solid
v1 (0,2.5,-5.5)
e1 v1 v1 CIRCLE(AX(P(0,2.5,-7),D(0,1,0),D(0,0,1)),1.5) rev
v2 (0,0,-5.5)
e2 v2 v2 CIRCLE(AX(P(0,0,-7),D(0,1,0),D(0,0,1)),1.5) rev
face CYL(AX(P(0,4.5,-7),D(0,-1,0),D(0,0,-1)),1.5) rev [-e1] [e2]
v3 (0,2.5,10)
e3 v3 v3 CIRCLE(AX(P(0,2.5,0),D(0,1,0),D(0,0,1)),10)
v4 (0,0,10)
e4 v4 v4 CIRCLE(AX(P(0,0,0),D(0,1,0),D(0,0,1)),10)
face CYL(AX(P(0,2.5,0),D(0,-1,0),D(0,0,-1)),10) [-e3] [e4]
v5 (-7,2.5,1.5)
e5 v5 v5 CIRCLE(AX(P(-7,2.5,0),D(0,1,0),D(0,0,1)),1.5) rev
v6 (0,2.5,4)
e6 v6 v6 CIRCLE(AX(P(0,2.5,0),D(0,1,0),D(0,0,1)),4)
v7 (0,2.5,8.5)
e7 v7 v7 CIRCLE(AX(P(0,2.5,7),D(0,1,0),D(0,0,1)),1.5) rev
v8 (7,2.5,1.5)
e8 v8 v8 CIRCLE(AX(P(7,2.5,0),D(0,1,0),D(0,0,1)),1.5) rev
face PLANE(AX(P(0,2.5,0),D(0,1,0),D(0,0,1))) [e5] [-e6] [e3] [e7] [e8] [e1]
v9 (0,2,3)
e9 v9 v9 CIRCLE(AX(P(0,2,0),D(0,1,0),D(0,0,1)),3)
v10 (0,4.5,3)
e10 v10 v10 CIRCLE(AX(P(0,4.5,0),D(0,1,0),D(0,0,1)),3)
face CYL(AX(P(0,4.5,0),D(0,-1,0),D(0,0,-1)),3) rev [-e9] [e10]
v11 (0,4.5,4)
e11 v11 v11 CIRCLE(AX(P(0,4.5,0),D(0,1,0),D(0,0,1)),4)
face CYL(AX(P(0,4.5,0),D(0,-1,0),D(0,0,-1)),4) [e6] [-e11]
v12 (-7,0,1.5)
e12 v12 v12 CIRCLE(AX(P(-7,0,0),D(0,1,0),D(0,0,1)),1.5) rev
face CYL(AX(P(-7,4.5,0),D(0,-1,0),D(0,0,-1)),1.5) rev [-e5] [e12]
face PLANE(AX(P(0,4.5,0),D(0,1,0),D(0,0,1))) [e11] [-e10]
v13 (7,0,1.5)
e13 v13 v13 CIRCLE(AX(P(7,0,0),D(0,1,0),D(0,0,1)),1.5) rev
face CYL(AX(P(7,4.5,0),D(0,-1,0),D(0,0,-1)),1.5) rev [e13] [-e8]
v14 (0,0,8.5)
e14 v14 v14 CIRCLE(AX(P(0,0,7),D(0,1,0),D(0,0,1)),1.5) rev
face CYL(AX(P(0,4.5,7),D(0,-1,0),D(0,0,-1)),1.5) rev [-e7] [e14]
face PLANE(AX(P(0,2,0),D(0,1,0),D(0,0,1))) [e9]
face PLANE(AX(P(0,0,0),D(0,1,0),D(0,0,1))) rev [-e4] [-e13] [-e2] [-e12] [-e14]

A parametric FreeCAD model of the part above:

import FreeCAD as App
import Part
import Sketcher

V = App.Vector
Q = App.Units.Quantity

doc = App.newDocument("Part")
body = doc.addObject("PartDesign::Body", "Body")

# Sketch on XZ plane
sketch1 = doc.addObject("Sketcher::SketchObject", "Sketch")
body.addObject(sketch1)
sketch1.AttachmentSupport = (doc.XZ_Plane, [""])
sketch1.MapMode = "FlatFace"
sketch1.addGeometry(Part.Circle(V(0, 0, 0), V(0, 0, 1), 10), False)
sketch1.addConstraint(Sketcher.Constraint("Coincident", 0, 3, -1, 1))
sketch1.addConstraint(Sketcher.Constraint("Diameter", 0, Q("20 mm")))
pad1 = doc.addObject("PartDesign::Pad", "Pad")
body.addObject(pad1)
pad1.Profile = sketch1
pad1.Length = 2.5
pad1.Reversed = True

# Sketch on XZ plane
sketch2 = doc.addObject("Sketcher::SketchObject", "Sketch001")
body.addObject(sketch2)
sketch2.AttachmentSupport = (doc.XZ_Plane, [""])
sketch2.MapMode = "FlatFace"
sketch2.AttachmentOffset = App.Placement(V(0, 0, -2.5), App.Rotation())
sketch2.addGeometry(Part.Circle(V(0, 0, 0), V(0, 0, 1), 4), False)
sketch2.addGeometry(Part.Circle(V(0, 0, 0), V(0, 0, 1), 3), False)
sketch2.addConstraint(Sketcher.Constraint("Coincident", 0, 3, -1, 1))
sketch2.addConstraint(Sketcher.Constraint("Coincident", 1, 3, -1, 1))
sketch2.addConstraint(Sketcher.Constraint("Diameter", 0, Q("8 mm")))
sketch2.addConstraint(Sketcher.Constraint("Diameter", 1, Q("6 mm")))
pad2 = doc.addObject("PartDesign::Pad", "Pad001")
body.addObject(pad2)
pad2.Profile = sketch2
pad2.Length = 2
pad2.Reversed = True

# Sketch on XZ plane
sketch3 = doc.addObject("Sketcher::SketchObject", "Sketch002")
body.addObject(sketch3)
sketch3.AttachmentSupport = (doc.XZ_Plane, [""])
sketch3.MapMode = "FlatFace"
sketch3.AttachmentOffset = App.Placement(V(0, 0, -2), App.Rotation())
sketch3.addGeometry(Part.Circle(V(0, 0, 0), V(0, 0, 1), 3), False)
sketch3.addConstraint(Sketcher.Constraint("Coincident", 0, 3, -1, 1))
sketch3.addConstraint(Sketcher.Constraint("Diameter", 0, Q("6 mm")))
pocket1 = doc.addObject("PartDesign::Pocket", "Pocket")
body.addObject(pocket1)
pocket1.Profile = sketch3
pocket1.Length = 0.5

# Sketch on XZ plane
sketch4 = doc.addObject("Sketcher::SketchObject", "Sketch003")
body.addObject(sketch4)
sketch4.AttachmentSupport = (doc.XZ_Plane, [""])
sketch4.MapMode = "FlatFace"
sketch4.AttachmentOffset = App.Placement(V(0, 0, -2), App.Rotation())
sketch4.addGeometry(Part.Circle(V(0, -7, 0), V(0, 0, 1), 1.5), False)
sketch4.addConstraint(Sketcher.Constraint("PointOnObject", 0, 3, -2))
sketch4.addConstraint(Sketcher.Constraint("Diameter", 0, Q("3 mm")))
sketch4.addConstraint(Sketcher.Constraint("DistanceY", 0, 3, -1, 1, Q("7 mm")))
pocket2 = doc.addObject("PartDesign::Pocket", "Pocket001")
body.addObject(pocket2)
pocket2.Profile = sketch4
pocket2.Type = "UpToFirst"
pocket2.Reversed = True

# Sketch on XZ plane
sketch5 = doc.addObject("Sketcher::SketchObject", "Sketch004")
body.addObject(sketch5)
sketch5.AttachmentSupport = (doc.XZ_Plane, [""])
sketch5.MapMode = "FlatFace"
sketch5.AttachmentOffset = App.Placement(V(0, 0, -2), App.Rotation())
sketch5.addGeometry(Part.Circle(V(7, 0, 0), V(0, 0, 1), 1.5), False)
sketch5.addConstraint(Sketcher.Constraint("PointOnObject", 0, 3, -1))
sketch5.addConstraint(Sketcher.Constraint("Diameter", 0, Q("3 mm")))
sketch5.addConstraint(Sketcher.Constraint("DistanceX", -1, 1, 0, 3, Q("7 mm")))
pocket3 = doc.addObject("PartDesign::Pocket", "Pocket002")
body.addObject(pocket3)
pocket3.Profile = sketch5
pocket3.Type = "UpToFirst"
pocket3.Reversed = True

# Sketch on XZ plane
sketch6 = doc.addObject("Sketcher::SketchObject", "Sketch005")
body.addObject(sketch6)
sketch6.AttachmentSupport = (doc.XZ_Plane, [""])
sketch6.MapMode = "FlatFace"
sketch6.AttachmentOffset = App.Placement(V(0, 0, -2), App.Rotation())
sketch6.addGeometry(Part.Circle(V(0, 7, 0), V(0, 0, 1), 1.5), False)
sketch6.addConstraint(Sketcher.Constraint("PointOnObject", 0, 3, -2))
sketch6.addConstraint(Sketcher.Constraint("Diameter", 0, Q("3 mm")))
sketch6.addConstraint(Sketcher.Constraint("DistanceY", -1, 1, 0, 3, Q("7 mm")))
pocket4 = doc.addObject("PartDesign::Pocket", "Pocket003")
body.addObject(pocket4)
pocket4.Profile = sketch6
pocket4.Type = "UpToFirst"
pocket4.Reversed = True

# Sketch on XZ plane
sketch7 = doc.addObject("Sketcher::SketchObject", "Sketch006")
body.addObject(sketch7)
sketch7.AttachmentSupport = (doc.XZ_Plane, [""])
sketch7.MapMode = "FlatFace"
sketch7.AttachmentOffset = App.Placement(V(0, 0, -2), App.Rotation())
sketch7.addGeometry(Part.Circle(V(-7, 0, 0), V(0, 0, 1), 1.5), False)
sketch7.addConstraint(Sketcher.Constraint("PointOnObject", 0, 3, -1))
sketch7.addConstraint(Sketcher.Constraint("Diameter", 0, Q("3 mm")))
sketch7.addConstraint(Sketcher.Constraint("DistanceX", 0, 3, -1, 1, Q("7 mm")))
pocket5 = doc.addObject("PartDesign::Pocket", "Pocket004")
body.addObject(pocket5)
pocket5.Profile = sketch7
pocket5.Type = "UpToFirst"
pocket5.Reversed = True

# Sketch on XZ plane
sketch8 = doc.addObject("Sketcher::SketchObject", "Sketch007")
body.addObject(sketch8)
sketch8.AttachmentSupport = (doc.XZ_Plane, [""])
sketch8.MapMode = "FlatFace"
sketch8.AttachmentOffset = App.Placement(V(0, 0, -2), App.Rotation())
sketch8.addGeometry(Part.Circle(V(0, -7, 0), V(0, 0, 1), 1.5), False)
sketch8.addGeometry(Part.Circle(V(7, 0, 0), V(0, 0, 1), 1.5), False)
sketch8.addGeometry(Part.Circle(V(0, 7, 0), V(0, 0, 1), 1.5), False)
sketch8.addGeometry(Part.Circle(V(-7, 0, 0), V(0, 0, 1), 1.5), False)
sketch8.addConstraint(Sketcher.Constraint("Equal", 0, 1))
sketch8.addConstraint(Sketcher.Constraint("Equal", 1, 2))
sketch8.addConstraint(Sketcher.Constraint("Equal", 2, 3))
sketch8.addConstraint(Sketcher.Constraint("Symmetric", 0, 3, 2, 3, -1, 1))
sketch8.addConstraint(Sketcher.Constraint("Symmetric", 1, 3, 3, 3, -1, 1))
sketch8.addConstraint(Sketcher.Constraint("PointOnObject", 0, 3, -2))
sketch8.addConstraint(Sketcher.Constraint("PointOnObject", 1, 3, -1))
sketch8.addConstraint(Sketcher.Constraint("Diameter", 0, Q("3 mm")))
sketch8.addConstraint(Sketcher.Constraint("DistanceY", 0, 3, -1, 1, Q("7 mm")))
sketch8.addConstraint(Sketcher.Constraint("DistanceX", -1, 1, 1, 3, Q("7 mm")))
pocket6 = doc.addObject("PartDesign::Pocket", "Pocket005")
body.addObject(pocket6)
pocket6.Profile = sketch8
pocket6.Length = 15.361407

doc.recompute()
